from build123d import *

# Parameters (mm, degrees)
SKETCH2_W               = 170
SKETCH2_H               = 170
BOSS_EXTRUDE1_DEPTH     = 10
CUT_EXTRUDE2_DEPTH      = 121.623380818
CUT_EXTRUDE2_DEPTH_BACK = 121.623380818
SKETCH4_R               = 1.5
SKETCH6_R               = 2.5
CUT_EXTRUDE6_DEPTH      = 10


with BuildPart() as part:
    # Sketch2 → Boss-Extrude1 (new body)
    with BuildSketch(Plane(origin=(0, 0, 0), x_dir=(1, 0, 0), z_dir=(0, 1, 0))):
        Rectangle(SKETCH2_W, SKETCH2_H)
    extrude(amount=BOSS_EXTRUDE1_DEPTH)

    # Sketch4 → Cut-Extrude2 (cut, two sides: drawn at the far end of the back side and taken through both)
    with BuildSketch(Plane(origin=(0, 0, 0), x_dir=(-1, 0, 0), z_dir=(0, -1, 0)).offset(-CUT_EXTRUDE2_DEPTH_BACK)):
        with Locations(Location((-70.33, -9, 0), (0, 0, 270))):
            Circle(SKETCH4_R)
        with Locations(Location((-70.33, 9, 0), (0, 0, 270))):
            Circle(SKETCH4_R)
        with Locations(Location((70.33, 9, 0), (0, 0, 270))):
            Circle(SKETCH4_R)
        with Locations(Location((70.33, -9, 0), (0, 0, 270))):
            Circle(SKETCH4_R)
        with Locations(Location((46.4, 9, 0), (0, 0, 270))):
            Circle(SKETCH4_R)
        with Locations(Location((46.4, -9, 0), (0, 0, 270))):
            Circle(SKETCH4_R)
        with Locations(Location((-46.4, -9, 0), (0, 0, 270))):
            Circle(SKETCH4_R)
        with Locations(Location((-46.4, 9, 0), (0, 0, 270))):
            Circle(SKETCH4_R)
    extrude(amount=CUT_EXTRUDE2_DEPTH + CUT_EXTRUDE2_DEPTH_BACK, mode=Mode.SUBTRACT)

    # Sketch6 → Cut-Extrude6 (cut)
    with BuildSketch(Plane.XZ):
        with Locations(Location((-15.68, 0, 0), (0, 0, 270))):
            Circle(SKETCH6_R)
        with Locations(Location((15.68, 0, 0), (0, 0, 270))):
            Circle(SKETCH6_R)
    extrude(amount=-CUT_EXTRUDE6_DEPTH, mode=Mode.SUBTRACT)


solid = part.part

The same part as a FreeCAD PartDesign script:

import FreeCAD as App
import Part
import Sketcher

V = App.Vector
Q = App.Units.Quantity


def add_polygon(sketch, points):
    """Adds a closed chain of lines whose ends are joined by coincident constraints."""
    first, n = sketch.GeometryCount, len(points)
    for a, b in zip(points, points[1:] + points[:1]):
        sketch.addGeometry(Part.LineSegment(App.Vector(*a, 0), App.Vector(*b, 0)), False)
    for i in range(n):
        sketch.addConstraint(Sketcher.Constraint("Coincident", first + i, 2, first + (i + 1) % n, 1))

doc = App.newDocument("Part")
params = doc.addObject("Spreadsheet::Sheet", "Params")
for row, (alias, value) in enumerate([
    ("sketch1_width", "170 mm"),
    ("pad1_length", "10 mm"),
    ("sketch2_diameter", "3 mm"),
    ("sketch3_diameter", "5 mm"),
    ("pocket2_length", "10 mm"),
], start=1):
    params.set(f"A{row}", alias)
    params.set(f"B{row}", "=" + value)
    params.setAlias(f"B{row}", alias)

body = doc.addObject("PartDesign::Body", "Body")

sketch1 = body.newObject("Sketcher::SketchObject", "Sketch")
sketch1.AttachmentSupport = (doc.getObject("XZ_Plane"), [""])
sketch1.MapMode = "FlatFace"
add_polygon(sketch1, [(-85, -85), (-85, 85), (85, 85), (85, -85)])
sketch1.addConstraint([
    Sketcher.Constraint("Vertical", 0),
    Sketcher.Constraint("Horizontal", 1),
    Sketcher.Constraint("Vertical", 2),
    Sketcher.Constraint("Horizontal", 3),
    Sketcher.Constraint("Symmetric", 0, 2, 2, 2, -1, 1),
    Sketcher.Constraint("Equal", 3, 0),
    Sketcher.Constraint("DistanceX", 1, 1, 1, 2, Q("170 mm")),
])
sketch1.setExpression("Constraints[10]", "Params.sketch1_width")
pad1 = body.newObject("PartDesign::Pad", "Pad")
pad1.Profile = sketch1
pad1.setExpression("Length", "Params.pad1_length")
pad1.Reversed = True

sketch2 = body.newObject("Sketcher::SketchObject", "Sketch001")
sketch2.AttachmentSupport = (doc.getObject("XZ_Plane"), [""])
sketch2.MapMode = "FlatFace"
sketch2.addGeometry([
    Part.Circle(V(70.33, 9, 0), V(0, 0, 1), 1.5),
    Part.Circle(V(70.33, -9, 0), V(0, 0, 1), 1.5),
    Part.Circle(V(-70.33, -9, 0), V(0, 0, 1), 1.5),
    Part.Circle(V(-70.33, 9, 0), V(0, 0, 1), 1.5),
    Part.Circle(V(-46.4, -9, 0), V(0, 0, 1), 1.5),
    Part.Circle(V(-46.4, 9, 0), V(0, 0, 1), 1.5),
    Part.Circle(V(46.4, 9, 0), V(0, 0, 1), 1.5),
    Part.Circle(V(46.4, -9, 0), V(0, 0, 1), 1.5),
], False)
sketch2.addConstraint([
    Sketcher.Constraint("Equal", 0, 1),
    Sketcher.Constraint("Equal", 1, 2),
    Sketcher.Constraint("Equal", 2, 3),
    Sketcher.Constraint("Equal", 3, 4),
    Sketcher.Constraint("Equal", 4, 5),
    Sketcher.Constraint("Equal", 5, 6),
    Sketcher.Constraint("Equal", 6, 7),
    Sketcher.Constraint("Symmetric", 0, 3, 2, 3, -1, 1),
    Sketcher.Constraint("Symmetric", 1, 3, 3, 3, -1, 1),
    Sketcher.Constraint("Symmetric", 4, 3, 6, 3, -1, 1),
    Sketcher.Constraint("Symmetric", 5, 3, 7, 3, -1, 1),
    Sketcher.Constraint("Symmetric", 1, 3, 2, 3, -2),
    Sketcher.Constraint("Symmetric", 5, 3, 6, 3, -2),
    Sketcher.Constraint("Horizontal", 2, 3, 4, 3),
    Sketcher.Constraint("Diameter", 0, Q("3 mm")),
    Sketcher.Constraint("DistanceY", -1, 1, 0, 3, Q("9 mm")),
    Sketcher.Constraint("DistanceX", 4, 3, -1, 1, Q("46.4 mm")),
    Sketcher.Constraint("DistanceX", -1, 1, 0, 3, Q("70.33 mm")),
])
sketch2.setExpression("Constraints[14]", "Params.sketch2_diameter")
pocket1 = body.newObject("PartDesign::Pocket", "Pocket")
pocket1.Profile = sketch2
pocket1.Type = "ThroughAll"
pocket1.Midplane = True

sketch3 = body.newObject("Sketcher::SketchObject", "Sketch002")
sketch3.AttachmentSupport = (doc.getObject("XZ_Plane"), [""])
sketch3.MapMode = "FlatFace"
sketch3.addGeometry([
    Part.Circle(V(-15.68, 0, 0), V(0, 0, 1), 2.5),
    Part.Circle(V(15.68, 0, 0), V(0, 0, 1), 2.5),
], False)
sketch3.addConstraint([
    Sketcher.Constraint("Equal", 0, 1),
    Sketcher.Constraint("Symmetric", 0, 3, 1, 3, -1, 1),
    Sketcher.Constraint("PointOnObject", 0, 3, -1),
    Sketcher.Constraint("Diameter", 0, Q("5 mm")),
    Sketcher.Constraint("DistanceX", 0, 3, -1, 1, Q("15.68 mm")),
])
sketch3.setExpression("Constraints[3]", "Params.sketch3_diameter")
pocket2 = body.newObject("PartDesign::Pocket", "Pocket001")
pocket2.Profile = sketch3
pocket2.setExpression("Length", "Params.pocket2_length")

doc.recompute()
